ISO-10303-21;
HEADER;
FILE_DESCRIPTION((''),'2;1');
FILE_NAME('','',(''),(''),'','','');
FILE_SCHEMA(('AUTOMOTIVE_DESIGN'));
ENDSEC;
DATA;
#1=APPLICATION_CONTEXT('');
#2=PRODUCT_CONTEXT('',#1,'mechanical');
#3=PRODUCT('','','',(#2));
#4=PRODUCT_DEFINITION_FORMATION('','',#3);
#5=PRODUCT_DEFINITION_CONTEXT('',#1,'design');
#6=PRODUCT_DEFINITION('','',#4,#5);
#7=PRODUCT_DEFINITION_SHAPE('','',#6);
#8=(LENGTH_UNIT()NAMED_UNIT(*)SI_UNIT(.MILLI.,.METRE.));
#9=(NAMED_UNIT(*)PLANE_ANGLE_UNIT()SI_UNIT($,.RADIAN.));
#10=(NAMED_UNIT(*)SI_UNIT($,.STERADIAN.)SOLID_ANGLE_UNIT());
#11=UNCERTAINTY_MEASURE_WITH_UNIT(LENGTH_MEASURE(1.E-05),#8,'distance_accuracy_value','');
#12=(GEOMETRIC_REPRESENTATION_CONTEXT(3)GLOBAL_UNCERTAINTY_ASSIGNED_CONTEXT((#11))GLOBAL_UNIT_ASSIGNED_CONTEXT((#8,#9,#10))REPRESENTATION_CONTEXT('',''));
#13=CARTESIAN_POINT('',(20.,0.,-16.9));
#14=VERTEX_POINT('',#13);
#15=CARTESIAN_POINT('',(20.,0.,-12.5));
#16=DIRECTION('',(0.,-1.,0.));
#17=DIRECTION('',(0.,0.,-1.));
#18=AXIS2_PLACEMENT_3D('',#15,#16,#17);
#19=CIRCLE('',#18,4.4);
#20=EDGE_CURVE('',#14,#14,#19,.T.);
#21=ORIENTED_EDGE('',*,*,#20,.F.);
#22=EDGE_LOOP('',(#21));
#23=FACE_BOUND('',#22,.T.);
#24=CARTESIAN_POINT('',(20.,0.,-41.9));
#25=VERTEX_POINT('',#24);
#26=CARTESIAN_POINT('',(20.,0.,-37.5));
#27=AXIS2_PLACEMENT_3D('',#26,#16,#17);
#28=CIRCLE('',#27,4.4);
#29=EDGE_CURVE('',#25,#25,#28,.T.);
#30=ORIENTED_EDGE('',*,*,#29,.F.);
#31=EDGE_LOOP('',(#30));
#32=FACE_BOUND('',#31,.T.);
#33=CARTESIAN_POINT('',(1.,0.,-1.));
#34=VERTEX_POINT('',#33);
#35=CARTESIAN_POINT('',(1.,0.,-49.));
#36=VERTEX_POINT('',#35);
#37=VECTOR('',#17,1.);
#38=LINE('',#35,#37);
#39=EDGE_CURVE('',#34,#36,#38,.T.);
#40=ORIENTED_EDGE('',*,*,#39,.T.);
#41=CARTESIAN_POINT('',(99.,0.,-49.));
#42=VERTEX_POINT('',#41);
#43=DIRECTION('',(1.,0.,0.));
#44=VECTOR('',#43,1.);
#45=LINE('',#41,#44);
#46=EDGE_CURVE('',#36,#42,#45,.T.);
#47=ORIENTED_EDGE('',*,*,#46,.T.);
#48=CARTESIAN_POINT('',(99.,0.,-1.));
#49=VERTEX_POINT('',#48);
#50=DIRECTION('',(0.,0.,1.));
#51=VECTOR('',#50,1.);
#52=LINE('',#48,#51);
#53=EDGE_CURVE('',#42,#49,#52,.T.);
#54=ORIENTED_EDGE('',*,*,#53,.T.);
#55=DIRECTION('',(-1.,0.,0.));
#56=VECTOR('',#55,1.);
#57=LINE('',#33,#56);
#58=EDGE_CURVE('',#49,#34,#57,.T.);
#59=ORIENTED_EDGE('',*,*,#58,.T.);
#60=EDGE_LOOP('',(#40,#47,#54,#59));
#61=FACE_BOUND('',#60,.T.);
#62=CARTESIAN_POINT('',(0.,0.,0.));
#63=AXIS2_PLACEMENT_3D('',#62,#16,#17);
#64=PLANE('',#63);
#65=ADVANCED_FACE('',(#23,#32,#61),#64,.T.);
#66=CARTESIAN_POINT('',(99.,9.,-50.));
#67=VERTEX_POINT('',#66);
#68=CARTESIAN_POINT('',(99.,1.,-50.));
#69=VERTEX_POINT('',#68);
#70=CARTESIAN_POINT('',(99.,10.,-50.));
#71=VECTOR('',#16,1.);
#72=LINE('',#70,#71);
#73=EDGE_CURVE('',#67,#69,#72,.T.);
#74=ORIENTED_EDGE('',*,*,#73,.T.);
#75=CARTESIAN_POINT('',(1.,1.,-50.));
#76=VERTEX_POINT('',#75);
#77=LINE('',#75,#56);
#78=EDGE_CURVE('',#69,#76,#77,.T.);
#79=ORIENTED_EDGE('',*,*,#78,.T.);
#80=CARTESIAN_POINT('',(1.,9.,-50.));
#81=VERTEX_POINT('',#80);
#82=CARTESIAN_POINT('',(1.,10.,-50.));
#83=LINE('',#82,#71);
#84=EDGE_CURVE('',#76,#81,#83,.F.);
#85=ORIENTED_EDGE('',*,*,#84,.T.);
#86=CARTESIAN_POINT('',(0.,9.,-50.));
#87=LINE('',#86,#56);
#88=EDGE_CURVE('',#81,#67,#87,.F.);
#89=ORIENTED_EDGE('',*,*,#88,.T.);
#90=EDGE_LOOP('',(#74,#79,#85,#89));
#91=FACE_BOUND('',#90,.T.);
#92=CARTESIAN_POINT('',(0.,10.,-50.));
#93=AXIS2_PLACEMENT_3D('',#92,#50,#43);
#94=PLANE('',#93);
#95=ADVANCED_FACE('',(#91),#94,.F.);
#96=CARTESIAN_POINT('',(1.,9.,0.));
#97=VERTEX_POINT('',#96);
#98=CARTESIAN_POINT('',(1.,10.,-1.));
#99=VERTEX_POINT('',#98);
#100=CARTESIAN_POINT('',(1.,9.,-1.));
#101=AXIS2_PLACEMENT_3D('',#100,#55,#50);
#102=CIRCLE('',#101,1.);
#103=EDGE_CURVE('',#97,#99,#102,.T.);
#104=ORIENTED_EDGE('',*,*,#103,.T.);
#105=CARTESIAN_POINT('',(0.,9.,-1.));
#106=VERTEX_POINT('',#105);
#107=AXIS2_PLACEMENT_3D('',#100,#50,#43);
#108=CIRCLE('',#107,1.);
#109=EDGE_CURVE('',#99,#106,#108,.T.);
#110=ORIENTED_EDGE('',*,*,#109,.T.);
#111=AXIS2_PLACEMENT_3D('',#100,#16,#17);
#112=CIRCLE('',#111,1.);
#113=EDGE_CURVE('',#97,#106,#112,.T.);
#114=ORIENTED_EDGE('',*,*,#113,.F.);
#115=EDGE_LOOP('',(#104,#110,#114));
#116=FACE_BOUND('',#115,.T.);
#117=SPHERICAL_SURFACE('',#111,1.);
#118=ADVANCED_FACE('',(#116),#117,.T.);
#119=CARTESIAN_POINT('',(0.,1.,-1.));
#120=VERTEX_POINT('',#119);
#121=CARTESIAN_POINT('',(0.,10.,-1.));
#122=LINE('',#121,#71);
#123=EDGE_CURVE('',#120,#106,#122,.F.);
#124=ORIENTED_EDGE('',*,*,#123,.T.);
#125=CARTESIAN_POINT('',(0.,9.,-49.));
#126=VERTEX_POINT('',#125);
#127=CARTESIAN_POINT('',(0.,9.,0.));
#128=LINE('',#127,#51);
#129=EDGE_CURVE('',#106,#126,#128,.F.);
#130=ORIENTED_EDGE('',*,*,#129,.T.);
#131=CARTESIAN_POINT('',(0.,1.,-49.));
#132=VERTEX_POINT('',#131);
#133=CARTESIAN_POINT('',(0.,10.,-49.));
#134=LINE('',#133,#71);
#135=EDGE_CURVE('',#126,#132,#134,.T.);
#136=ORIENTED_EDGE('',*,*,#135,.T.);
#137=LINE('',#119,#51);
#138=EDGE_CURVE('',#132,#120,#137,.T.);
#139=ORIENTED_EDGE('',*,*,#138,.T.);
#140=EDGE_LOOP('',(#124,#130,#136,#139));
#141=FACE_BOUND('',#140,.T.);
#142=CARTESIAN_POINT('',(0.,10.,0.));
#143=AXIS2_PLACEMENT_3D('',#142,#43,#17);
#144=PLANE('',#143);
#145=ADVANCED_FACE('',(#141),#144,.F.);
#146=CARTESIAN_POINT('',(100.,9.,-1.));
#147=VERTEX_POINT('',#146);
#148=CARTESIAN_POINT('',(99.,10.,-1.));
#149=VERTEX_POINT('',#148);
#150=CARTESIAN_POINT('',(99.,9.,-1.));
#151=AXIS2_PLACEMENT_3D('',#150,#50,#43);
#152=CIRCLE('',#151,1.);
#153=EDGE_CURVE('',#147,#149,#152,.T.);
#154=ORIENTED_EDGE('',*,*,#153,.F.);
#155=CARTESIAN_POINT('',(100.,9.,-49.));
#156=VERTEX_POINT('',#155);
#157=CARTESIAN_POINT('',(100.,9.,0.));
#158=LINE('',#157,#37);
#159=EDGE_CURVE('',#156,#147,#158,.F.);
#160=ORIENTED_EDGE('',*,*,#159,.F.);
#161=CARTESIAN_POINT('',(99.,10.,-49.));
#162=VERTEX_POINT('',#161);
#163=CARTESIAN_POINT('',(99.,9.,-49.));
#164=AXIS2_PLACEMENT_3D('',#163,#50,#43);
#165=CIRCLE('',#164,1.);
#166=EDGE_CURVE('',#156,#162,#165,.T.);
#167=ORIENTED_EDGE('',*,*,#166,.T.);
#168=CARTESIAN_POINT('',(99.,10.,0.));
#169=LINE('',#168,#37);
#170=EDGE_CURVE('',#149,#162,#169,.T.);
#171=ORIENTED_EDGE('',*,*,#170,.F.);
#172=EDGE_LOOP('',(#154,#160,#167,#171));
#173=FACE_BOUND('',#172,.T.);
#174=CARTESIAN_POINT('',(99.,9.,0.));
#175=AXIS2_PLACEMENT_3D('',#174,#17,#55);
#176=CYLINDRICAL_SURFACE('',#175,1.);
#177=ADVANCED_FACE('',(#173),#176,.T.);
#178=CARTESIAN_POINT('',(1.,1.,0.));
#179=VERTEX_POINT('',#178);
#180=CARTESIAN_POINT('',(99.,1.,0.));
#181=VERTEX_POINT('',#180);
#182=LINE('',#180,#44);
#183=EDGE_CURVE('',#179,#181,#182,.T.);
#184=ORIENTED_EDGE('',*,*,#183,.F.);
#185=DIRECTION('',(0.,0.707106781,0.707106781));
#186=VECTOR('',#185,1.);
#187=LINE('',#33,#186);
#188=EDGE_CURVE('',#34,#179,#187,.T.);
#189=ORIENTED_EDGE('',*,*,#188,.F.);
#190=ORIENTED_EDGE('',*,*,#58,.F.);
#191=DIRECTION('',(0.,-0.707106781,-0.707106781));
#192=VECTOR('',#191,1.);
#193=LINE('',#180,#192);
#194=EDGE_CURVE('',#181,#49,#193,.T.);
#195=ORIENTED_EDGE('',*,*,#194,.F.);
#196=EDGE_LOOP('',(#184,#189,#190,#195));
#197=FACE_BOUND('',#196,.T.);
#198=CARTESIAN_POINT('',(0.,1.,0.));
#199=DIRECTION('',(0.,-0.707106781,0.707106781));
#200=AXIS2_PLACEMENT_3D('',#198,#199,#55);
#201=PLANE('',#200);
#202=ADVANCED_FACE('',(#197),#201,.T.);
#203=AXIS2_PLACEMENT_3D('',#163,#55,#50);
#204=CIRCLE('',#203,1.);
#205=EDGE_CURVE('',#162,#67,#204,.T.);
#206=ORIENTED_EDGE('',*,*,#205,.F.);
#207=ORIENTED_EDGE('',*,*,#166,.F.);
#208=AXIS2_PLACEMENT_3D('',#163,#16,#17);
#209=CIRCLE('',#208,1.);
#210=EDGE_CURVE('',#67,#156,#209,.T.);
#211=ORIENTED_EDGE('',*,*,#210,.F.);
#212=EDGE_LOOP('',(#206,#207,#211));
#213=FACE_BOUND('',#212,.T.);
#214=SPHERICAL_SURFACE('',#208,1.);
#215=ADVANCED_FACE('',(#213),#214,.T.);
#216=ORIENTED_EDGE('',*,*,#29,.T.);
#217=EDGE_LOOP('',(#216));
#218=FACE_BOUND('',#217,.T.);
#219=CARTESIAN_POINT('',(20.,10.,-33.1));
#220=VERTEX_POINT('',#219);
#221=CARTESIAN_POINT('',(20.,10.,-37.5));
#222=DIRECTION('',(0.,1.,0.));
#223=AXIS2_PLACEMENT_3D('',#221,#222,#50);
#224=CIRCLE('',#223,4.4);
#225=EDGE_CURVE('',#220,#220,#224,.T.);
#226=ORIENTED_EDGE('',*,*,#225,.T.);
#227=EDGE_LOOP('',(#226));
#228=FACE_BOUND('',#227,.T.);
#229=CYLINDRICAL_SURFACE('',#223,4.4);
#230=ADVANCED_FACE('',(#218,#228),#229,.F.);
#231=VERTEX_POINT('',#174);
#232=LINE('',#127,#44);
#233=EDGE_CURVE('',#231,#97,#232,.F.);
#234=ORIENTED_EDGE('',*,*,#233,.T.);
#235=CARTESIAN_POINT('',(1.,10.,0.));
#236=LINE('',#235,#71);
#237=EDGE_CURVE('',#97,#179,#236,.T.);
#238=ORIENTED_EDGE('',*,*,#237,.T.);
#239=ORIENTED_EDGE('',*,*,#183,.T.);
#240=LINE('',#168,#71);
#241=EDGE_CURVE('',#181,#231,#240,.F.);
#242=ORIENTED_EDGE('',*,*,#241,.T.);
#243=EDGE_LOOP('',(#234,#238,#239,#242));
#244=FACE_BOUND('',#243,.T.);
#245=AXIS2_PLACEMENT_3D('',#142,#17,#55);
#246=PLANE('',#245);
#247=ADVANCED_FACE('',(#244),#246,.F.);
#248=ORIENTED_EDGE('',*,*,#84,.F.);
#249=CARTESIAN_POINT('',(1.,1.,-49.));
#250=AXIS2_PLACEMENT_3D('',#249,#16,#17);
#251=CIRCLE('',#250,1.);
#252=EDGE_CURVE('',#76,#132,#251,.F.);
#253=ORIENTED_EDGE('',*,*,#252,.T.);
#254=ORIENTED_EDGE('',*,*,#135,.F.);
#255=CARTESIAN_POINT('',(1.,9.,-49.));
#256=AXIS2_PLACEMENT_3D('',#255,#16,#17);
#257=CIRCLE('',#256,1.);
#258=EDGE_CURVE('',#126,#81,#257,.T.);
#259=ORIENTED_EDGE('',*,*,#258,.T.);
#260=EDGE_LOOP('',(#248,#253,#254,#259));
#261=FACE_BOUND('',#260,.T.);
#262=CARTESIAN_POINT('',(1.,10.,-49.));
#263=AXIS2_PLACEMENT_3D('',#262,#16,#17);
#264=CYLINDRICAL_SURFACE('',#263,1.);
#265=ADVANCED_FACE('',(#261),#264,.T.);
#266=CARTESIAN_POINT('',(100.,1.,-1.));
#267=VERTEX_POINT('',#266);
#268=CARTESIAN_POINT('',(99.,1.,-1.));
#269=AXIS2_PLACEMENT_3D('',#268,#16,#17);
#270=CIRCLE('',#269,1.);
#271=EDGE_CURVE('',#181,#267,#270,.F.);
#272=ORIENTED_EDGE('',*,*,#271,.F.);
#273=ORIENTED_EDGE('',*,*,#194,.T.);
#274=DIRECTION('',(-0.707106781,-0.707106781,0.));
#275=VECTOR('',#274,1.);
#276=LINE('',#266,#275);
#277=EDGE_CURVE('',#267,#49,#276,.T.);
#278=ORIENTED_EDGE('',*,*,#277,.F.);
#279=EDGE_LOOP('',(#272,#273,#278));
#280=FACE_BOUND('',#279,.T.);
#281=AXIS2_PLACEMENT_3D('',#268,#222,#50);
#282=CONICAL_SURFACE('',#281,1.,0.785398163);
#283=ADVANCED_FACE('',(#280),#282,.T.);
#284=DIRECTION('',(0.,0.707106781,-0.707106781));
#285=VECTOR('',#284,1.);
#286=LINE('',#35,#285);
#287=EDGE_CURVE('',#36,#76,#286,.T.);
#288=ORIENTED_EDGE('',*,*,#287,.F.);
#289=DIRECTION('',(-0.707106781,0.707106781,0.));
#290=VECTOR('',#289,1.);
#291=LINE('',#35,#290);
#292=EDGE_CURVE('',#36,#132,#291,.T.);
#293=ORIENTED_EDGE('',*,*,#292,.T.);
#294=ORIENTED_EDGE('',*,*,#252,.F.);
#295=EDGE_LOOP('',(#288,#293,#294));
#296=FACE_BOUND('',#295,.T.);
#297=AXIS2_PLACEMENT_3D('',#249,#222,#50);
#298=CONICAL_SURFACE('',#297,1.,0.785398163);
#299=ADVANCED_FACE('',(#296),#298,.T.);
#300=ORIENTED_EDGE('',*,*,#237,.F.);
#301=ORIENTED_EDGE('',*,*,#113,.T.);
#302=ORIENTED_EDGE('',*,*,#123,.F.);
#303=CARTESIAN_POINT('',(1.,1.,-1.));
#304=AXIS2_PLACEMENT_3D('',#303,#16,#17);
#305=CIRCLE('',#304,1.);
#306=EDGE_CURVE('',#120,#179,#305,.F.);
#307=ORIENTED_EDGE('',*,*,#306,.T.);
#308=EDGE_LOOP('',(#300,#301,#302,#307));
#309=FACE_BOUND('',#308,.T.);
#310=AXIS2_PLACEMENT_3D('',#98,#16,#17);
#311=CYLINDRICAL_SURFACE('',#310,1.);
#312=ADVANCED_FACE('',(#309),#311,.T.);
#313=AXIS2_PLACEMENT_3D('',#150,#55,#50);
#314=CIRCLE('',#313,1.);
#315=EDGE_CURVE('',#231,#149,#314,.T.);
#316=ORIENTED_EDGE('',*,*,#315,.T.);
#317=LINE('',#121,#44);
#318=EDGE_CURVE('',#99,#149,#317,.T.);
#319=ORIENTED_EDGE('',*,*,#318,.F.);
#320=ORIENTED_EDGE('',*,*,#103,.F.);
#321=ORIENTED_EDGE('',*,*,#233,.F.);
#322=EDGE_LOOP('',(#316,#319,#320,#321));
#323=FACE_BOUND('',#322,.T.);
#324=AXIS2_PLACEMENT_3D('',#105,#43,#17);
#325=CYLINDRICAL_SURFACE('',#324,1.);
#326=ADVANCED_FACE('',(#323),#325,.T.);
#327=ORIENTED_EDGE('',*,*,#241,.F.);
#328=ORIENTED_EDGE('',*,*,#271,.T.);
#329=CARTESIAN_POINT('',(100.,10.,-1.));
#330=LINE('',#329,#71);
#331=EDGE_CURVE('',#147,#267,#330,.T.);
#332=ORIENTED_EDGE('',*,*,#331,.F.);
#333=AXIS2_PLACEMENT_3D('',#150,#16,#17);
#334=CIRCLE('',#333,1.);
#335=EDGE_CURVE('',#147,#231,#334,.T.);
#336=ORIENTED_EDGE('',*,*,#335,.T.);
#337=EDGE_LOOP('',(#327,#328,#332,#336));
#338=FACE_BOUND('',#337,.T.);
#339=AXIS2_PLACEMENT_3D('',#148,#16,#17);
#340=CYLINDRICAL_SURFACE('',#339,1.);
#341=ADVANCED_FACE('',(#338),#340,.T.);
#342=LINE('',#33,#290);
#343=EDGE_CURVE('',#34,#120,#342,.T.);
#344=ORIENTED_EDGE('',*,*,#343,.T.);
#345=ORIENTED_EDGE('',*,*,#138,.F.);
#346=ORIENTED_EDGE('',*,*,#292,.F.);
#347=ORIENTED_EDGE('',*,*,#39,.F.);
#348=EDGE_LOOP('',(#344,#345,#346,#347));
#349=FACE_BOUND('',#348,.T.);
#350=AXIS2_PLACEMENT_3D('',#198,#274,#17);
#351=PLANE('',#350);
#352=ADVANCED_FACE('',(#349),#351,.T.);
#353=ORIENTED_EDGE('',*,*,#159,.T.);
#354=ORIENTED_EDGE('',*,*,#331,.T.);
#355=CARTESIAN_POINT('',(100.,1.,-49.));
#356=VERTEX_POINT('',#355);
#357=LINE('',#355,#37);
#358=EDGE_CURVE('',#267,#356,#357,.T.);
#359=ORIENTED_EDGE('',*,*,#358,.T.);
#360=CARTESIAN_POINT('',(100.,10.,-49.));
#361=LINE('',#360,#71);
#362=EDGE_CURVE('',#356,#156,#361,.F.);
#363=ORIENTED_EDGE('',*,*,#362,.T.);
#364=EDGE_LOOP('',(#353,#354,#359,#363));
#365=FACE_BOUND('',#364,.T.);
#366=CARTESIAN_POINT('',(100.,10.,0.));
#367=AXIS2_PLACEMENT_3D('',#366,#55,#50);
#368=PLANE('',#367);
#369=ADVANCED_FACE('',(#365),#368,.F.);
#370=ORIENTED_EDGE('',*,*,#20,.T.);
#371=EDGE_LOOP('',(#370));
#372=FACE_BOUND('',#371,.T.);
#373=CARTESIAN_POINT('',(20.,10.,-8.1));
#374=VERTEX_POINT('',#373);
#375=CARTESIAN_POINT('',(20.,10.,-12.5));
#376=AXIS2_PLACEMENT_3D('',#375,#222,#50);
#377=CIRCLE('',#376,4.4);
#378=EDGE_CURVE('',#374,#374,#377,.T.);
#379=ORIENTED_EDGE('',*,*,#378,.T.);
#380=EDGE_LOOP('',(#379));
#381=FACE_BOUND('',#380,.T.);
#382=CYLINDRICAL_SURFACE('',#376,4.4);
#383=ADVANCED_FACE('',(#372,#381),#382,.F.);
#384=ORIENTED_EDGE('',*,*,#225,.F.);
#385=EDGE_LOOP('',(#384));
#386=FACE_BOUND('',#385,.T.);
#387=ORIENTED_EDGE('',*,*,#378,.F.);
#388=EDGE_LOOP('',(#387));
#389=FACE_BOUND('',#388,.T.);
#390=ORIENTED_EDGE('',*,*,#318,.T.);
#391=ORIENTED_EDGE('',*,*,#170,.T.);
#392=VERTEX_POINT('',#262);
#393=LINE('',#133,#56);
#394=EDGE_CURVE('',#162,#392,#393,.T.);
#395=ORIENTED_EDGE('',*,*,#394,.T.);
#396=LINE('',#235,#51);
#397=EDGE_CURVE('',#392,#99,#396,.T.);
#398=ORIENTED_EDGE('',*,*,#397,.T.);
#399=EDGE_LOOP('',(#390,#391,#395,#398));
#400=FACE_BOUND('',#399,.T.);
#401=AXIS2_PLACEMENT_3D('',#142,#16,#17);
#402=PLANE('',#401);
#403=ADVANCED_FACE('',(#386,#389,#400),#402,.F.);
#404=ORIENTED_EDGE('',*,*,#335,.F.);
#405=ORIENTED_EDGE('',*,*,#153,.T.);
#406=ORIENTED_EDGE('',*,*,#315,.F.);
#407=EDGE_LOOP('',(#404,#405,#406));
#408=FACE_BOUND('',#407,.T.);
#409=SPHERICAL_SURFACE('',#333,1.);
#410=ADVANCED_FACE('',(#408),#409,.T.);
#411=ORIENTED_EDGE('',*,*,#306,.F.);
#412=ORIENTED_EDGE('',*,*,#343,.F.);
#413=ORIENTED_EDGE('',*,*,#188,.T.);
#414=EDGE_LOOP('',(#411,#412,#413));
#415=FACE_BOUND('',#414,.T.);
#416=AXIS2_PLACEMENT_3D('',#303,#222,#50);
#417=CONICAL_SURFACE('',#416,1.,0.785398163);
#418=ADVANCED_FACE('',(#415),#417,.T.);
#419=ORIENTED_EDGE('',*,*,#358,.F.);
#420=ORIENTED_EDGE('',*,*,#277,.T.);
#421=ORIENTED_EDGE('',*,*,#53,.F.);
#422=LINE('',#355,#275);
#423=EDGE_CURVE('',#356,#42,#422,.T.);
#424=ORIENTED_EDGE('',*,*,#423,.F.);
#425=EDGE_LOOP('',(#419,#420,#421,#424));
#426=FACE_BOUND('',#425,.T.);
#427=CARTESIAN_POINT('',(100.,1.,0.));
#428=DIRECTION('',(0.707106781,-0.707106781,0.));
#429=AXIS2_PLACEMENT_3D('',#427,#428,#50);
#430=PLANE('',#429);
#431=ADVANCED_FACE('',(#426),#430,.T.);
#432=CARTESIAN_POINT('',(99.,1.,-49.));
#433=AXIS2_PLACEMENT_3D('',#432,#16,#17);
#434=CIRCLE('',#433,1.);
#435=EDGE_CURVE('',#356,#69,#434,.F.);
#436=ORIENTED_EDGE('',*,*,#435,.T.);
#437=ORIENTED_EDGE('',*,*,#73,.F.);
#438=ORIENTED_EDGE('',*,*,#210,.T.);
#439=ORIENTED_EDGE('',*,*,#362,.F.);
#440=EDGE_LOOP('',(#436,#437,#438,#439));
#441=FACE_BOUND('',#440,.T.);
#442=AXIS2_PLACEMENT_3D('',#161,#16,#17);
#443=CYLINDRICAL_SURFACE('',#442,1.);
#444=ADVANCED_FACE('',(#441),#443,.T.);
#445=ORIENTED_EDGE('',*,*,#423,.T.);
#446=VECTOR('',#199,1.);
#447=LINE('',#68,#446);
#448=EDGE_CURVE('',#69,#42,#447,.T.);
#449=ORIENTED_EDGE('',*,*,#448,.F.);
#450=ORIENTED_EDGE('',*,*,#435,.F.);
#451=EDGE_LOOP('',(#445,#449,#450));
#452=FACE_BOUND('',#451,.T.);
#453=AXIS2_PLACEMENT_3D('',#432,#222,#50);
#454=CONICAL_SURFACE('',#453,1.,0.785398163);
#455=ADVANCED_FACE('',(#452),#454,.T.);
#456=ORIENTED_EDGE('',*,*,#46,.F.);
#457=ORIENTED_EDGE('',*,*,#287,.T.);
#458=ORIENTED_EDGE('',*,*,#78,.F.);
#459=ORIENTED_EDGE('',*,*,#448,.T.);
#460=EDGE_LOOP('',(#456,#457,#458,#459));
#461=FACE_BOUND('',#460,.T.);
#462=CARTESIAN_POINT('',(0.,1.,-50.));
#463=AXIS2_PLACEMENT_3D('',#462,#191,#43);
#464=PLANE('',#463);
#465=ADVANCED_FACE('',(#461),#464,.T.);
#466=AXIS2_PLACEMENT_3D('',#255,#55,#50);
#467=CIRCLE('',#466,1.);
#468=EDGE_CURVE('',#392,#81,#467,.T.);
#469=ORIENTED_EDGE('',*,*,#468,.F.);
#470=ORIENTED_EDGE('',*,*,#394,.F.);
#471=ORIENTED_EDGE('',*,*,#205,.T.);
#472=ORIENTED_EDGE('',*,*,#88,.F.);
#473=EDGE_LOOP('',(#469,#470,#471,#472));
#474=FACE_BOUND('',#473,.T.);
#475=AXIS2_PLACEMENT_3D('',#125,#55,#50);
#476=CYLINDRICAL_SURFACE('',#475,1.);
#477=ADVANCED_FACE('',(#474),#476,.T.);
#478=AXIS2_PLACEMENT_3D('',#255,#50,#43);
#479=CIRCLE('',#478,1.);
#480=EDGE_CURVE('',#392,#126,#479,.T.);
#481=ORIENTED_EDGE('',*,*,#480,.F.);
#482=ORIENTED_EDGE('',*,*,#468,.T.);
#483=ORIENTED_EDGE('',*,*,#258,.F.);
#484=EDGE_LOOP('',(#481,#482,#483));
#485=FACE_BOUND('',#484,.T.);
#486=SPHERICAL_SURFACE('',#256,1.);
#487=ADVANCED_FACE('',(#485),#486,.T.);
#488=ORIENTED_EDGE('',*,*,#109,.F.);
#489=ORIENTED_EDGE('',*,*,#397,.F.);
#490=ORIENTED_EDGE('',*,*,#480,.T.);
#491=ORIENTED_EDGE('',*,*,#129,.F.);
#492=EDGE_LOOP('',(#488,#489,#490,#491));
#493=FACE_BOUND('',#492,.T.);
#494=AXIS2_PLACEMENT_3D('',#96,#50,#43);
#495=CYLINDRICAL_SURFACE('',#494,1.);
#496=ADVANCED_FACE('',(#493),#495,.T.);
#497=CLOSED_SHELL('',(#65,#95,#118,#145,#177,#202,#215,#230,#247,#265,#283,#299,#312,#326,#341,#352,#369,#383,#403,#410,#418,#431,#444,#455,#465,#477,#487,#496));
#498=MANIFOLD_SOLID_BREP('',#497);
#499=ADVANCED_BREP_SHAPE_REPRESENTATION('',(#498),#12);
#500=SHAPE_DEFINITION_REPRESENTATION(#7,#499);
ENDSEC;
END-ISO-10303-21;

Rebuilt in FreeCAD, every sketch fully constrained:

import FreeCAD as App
import Part
import Sketcher

V = App.Vector
Q = App.Units.Quantity


def edges_at(feature, points):
    """Names of the edges that pass closest to the given points."""
    edges = feature.Shape.Edges
    near = lambda p: min(range(len(edges)), key=lambda i: edges[i].distToShape(Part.Vertex(*p))[0])
    return sorted({f"Edge{near(p) + 1}" for p in points})


def add_polygon(sketch, points):
    """Adds a closed chain of lines whose ends are joined by coincident constraints."""
    first, n = sketch.GeometryCount, len(points)
    for a, b in zip(points, points[1:] + points[:1]):
        sketch.addGeometry(Part.LineSegment(App.Vector(*a, 0), App.Vector(*b, 0)), False)
    for i in range(n):
        sketch.addConstraint(Sketcher.Constraint("Coincident", first + i, 2, first + (i + 1) % n, 1))

doc = App.newDocument("Part")
body = doc.addObject("PartDesign::Body", "Body")

# Sketch on XZ plane
sketch1 = body.newObject("Sketcher::SketchObject", "Sketch")
sketch1.AttachmentSupport = (doc.getObject("XZ_Plane"), [""])
sketch1.MapMode = "FlatFace"
add_polygon(sketch1, [(0, -50), (0, 0), (100, 0), (100, -50)])  # lines 0-3
sketch1.addConstraint([
    Sketcher.Constraint("Vertical", 0),
    Sketcher.Constraint("Horizontal", 1),
    Sketcher.Constraint("Vertical", 2),
    Sketcher.Constraint("Horizontal", 3),
    Sketcher.Constraint("Coincident", 0, 2, -1, 1),
    Sketcher.Constraint("DistanceX", 1, 1, 1, 2, Q("100 mm")),
    Sketcher.Constraint("DistanceY", 0, 1, 0, 2, Q("50 mm")),
])
pad1 = body.newObject("PartDesign::Pad", "Pad")
pad1.Profile = sketch1
pad1.Length = 10
pad1.Reversed = True

# Sketch on XZ plane
sketch2 = body.newObject("Sketcher::SketchObject", "Sketch001")
sketch2.AttachmentSupport = (doc.getObject("XZ_Plane"), [""])
sketch2.MapMode = "FlatFace"
sketch2.AttachmentOffset = App.Placement(V(0, 0, -10), App.Rotation())
sketch2.addGeometry([
    Part.Circle(V(20, -37.5, 0), V(0, 0, 1), 4.4),
    Part.Circle(V(20, -12.5, 0), V(0, 0, 1), 4.4),
], False)
sketch2.addConstraint([
    Sketcher.Constraint("Equal", 0, 1),
    Sketcher.Constraint("Vertical", 0, 3, 1, 3),
    Sketcher.Constraint("Diameter", 0, Q("8.8 mm")),
    Sketcher.Constraint("DistanceX", -1, 1, 0, 3, Q("20 mm")),
    Sketcher.Constraint("DistanceY", 0, 3, 1, 3, Q("25 mm")),
    Sketcher.Constraint("DistanceY", 0, 3, -1, 1, Q("37.5 mm")),
])
doc.recompute()
hole = body.newObject("PartDesign::Hole", "Hole")
hole.Profile = sketch2
hole.ThreadType = "None"
hole.Diameter = 8.8
hole.DepthType = "Dimension"
hole.Depth = 23.75
hole.DrillPoint = "Angled"
hole.DrillPointAngle = 118
hole.Reversed = True
doc.recompute()

fillet = body.newObject("PartDesign::Fillet", "Fillet")
fillet.Base = (hole, edges_at(hole, [
    (0, 5, -50),
    (100, 5, -50),
    (100, 5, 0),
    (0, 5, 0),
]))
fillet.Radius = 1
doc.recompute()

chamfer = body.newObject("PartDesign::Chamfer", "Chamfer")
chamfer.Base = (fillet, edges_at(fillet, [
    (50, 0, -50),
    (0, 0, -25),
    (100, 0, -25),
    (50, 0, 0),
    (99.707, 0, -0.293),
    (0.293, 0, -0.293),
    (0.293, 0, -49.707),
    (99.707, 0, -49.707),
]))
chamfer.Size = 1
doc.recompute()

fillet2 = body.newObject("PartDesign::Fillet", "Fillet001")
fillet2.Base = (chamfer, edges_at(chamfer, [
    (50, 10, -50),
    (100, 10, -25),
    (0, 10, -25),
    (50, 10, 0),
    (99.707, 10, -0.293),
    (0.293, 10, -0.293),
    (0.293, 10, -49.707),
    (99.707, 10, -49.707),
]))
fillet2.Radius = 1

doc.recompute()
